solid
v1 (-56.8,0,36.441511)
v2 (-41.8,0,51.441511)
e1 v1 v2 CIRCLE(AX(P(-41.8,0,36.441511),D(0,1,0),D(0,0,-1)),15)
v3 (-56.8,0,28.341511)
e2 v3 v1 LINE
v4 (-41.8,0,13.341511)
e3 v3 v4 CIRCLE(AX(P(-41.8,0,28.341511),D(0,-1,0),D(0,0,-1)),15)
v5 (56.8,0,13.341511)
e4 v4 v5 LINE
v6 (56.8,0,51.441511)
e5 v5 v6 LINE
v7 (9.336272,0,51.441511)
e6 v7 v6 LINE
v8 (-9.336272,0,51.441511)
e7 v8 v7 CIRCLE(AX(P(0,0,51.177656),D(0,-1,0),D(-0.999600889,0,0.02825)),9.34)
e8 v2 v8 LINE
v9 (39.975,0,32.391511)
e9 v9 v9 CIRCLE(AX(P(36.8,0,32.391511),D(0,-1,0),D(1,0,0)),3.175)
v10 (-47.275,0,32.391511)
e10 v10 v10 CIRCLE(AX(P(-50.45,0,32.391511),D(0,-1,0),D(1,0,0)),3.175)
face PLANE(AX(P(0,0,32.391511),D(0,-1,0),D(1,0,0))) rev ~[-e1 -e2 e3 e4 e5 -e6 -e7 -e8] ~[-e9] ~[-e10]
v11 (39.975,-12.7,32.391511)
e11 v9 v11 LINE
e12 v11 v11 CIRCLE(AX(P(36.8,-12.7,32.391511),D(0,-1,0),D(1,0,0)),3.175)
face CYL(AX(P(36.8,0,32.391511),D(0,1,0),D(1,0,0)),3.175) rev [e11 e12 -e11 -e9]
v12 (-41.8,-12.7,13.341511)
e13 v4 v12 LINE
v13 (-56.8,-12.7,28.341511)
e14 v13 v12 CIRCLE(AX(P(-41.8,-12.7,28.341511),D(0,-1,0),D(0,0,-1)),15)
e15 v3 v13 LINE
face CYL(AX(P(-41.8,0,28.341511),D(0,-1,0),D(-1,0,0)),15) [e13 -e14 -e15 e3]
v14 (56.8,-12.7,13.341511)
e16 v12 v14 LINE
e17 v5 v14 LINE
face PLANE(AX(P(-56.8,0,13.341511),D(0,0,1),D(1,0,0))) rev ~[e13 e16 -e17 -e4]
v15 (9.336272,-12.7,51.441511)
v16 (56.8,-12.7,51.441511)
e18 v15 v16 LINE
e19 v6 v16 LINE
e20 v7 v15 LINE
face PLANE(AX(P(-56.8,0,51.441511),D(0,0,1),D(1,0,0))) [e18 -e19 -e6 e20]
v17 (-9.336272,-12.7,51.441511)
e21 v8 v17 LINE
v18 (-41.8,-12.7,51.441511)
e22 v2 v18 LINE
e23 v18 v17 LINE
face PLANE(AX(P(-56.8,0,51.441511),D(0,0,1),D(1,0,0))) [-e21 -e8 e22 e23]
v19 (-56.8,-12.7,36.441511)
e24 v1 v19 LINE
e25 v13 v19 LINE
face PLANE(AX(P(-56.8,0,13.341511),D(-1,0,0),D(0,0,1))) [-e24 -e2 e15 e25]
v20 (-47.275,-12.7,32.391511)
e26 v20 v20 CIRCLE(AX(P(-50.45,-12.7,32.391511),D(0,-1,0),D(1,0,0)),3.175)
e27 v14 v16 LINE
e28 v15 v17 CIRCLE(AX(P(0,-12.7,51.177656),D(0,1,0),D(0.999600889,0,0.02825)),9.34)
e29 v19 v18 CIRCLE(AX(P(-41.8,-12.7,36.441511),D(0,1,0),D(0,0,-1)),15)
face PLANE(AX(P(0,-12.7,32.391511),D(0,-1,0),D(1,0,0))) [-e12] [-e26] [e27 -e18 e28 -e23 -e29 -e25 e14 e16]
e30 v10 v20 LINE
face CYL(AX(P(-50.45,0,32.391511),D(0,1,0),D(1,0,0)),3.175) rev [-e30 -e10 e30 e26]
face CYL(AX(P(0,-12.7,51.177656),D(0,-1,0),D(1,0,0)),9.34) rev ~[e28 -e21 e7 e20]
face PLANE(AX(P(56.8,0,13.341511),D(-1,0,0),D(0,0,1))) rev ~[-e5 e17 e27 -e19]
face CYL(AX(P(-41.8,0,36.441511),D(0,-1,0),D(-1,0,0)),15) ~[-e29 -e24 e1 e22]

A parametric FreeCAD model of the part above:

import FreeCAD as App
import Part
import Sketcher

V = App.Vector
Q = App.Units.Quantity


def edges_at(feature, points):
    """Names of the edges that pass closest to the given points."""
    edges = feature.Shape.Edges
    near = lambda p: min(range(len(edges)), key=lambda i: edges[i].distToShape(Part.Vertex(*p))[0])
    return sorted({f"Edge{near(p) + 1}" for p in points})

doc = App.newDocument("Part")
body = doc.addObject("PartDesign::Body", "Body")

# Sketch on XZ plane
sketch1 = body.newObject("Sketcher::SketchObject", "Sketch")
sketch1.AttachmentSupport = (doc.getObject("XZ_Plane"), [""])
sketch1.MapMode = "FlatFace"
sketch1.addGeometry([
    Part.LineSegment(V(-56.8, 51.4, 0), V(-56.8, 13.3, 0)),  # 0
    Part.LineSegment(V(-56.8, 13.3, 0), V(56.8, 13.3, 0)),  # 1
    Part.LineSegment(V(56.8, 13.3, 0), V(56.8, 51.4, 0)),  # 2
    Part.LineSegment(V(56.8, 51.4, 0), V(-56.8, 51.4, 0)),  # 3
    Part.Circle(V(-50.5, 32.4, 0), V(0, 0, 1), 3.2),  # 4
    Part.Circle(V(36.8, 32.4, 0), V(0, 0, 1), 3.2),  # 5
], False)
sketch1.addConstraint([
    Sketcher.Constraint("Coincident", 0, 2, 1, 1),
    Sketcher.Constraint("Coincident", 1, 2, 2, 1),
    Sketcher.Constraint("Coincident", 2, 2, 3, 1),
    Sketcher.Constraint("Coincident", 3, 2, 0, 1),
    Sketcher.Constraint("Vertical", 0),
    Sketcher.Constraint("Horizontal", 1),
    Sketcher.Constraint("Vertical", 2),
    Sketcher.Constraint("Horizontal", 3),
    Sketcher.Constraint("Equal", 4, 5),
    Sketcher.Constraint("Horizontal", 4, 3, 5, 3),
    Sketcher.Constraint("Diameter", 4, Q("6.35 mm")),
    Sketcher.Constraint("DistanceX", 1, 1, 1, 2, Q("113.6 mm")),
    Sketcher.Constraint("DistanceY", 0, 2, 0, 1, Q("38.1 mm")),
    Sketcher.Constraint("DistanceX", 5, 3, 1, 2, Q("20 mm")),
    Sketcher.Constraint("DistanceX", -1, 1, 5, 3, Q("36.8 mm")),
    Sketcher.Constraint("DistanceX", 4, 3, -1, 1, Q("50.45 mm")),
    Sketcher.Constraint("DistanceY", 0, 2, 4, 3, Q("19.05 mm")),
    Sketcher.Constraint("DistanceY", -1, 1, 4, 3, Q("32.391511 mm")),
])
pad1 = body.newObject("PartDesign::Pad", "Pad")
pad1.Profile = sketch1
pad1.Length = 12.7
doc.recompute()

fillet = body.newObject("PartDesign::Fillet", "Fillet")
fillet.Base = (pad1, edges_at(pad1, [(-56.8, -6.35, 51.442), (-56.8, -6.35, 13.342)]))
fillet.Radius = 15

# Sketch on XZ plane
sketch2 = body.newObject("Sketcher::SketchObject", "Sketch001")
sketch2.AttachmentSupport = (doc.getObject("XZ_Plane"), [""])
sketch2.MapMode = "FlatFace"
sketch2.AttachmentOffset = App.Placement(V(0, 0, 12.7), App.Rotation())
sketch2.addGeometry(Part.Circle(V(0, 51, 0), V(0, 0, 1), 9), False)
sketch2.addConstraint([
    Sketcher.Constraint("PointOnObject", 0, 3, -2),
    Sketcher.Constraint("Diameter", 0, Q("18.68 mm")),
    Sketcher.Constraint("DistanceY", -1, 1, 0, 3, Q("51.177656 mm")),
])
pocket1 = body.newObject("PartDesign::Pocket", "Pocket")
pocket1.Profile = sketch2
pocket1.Length = 15.4

doc.recompute()
